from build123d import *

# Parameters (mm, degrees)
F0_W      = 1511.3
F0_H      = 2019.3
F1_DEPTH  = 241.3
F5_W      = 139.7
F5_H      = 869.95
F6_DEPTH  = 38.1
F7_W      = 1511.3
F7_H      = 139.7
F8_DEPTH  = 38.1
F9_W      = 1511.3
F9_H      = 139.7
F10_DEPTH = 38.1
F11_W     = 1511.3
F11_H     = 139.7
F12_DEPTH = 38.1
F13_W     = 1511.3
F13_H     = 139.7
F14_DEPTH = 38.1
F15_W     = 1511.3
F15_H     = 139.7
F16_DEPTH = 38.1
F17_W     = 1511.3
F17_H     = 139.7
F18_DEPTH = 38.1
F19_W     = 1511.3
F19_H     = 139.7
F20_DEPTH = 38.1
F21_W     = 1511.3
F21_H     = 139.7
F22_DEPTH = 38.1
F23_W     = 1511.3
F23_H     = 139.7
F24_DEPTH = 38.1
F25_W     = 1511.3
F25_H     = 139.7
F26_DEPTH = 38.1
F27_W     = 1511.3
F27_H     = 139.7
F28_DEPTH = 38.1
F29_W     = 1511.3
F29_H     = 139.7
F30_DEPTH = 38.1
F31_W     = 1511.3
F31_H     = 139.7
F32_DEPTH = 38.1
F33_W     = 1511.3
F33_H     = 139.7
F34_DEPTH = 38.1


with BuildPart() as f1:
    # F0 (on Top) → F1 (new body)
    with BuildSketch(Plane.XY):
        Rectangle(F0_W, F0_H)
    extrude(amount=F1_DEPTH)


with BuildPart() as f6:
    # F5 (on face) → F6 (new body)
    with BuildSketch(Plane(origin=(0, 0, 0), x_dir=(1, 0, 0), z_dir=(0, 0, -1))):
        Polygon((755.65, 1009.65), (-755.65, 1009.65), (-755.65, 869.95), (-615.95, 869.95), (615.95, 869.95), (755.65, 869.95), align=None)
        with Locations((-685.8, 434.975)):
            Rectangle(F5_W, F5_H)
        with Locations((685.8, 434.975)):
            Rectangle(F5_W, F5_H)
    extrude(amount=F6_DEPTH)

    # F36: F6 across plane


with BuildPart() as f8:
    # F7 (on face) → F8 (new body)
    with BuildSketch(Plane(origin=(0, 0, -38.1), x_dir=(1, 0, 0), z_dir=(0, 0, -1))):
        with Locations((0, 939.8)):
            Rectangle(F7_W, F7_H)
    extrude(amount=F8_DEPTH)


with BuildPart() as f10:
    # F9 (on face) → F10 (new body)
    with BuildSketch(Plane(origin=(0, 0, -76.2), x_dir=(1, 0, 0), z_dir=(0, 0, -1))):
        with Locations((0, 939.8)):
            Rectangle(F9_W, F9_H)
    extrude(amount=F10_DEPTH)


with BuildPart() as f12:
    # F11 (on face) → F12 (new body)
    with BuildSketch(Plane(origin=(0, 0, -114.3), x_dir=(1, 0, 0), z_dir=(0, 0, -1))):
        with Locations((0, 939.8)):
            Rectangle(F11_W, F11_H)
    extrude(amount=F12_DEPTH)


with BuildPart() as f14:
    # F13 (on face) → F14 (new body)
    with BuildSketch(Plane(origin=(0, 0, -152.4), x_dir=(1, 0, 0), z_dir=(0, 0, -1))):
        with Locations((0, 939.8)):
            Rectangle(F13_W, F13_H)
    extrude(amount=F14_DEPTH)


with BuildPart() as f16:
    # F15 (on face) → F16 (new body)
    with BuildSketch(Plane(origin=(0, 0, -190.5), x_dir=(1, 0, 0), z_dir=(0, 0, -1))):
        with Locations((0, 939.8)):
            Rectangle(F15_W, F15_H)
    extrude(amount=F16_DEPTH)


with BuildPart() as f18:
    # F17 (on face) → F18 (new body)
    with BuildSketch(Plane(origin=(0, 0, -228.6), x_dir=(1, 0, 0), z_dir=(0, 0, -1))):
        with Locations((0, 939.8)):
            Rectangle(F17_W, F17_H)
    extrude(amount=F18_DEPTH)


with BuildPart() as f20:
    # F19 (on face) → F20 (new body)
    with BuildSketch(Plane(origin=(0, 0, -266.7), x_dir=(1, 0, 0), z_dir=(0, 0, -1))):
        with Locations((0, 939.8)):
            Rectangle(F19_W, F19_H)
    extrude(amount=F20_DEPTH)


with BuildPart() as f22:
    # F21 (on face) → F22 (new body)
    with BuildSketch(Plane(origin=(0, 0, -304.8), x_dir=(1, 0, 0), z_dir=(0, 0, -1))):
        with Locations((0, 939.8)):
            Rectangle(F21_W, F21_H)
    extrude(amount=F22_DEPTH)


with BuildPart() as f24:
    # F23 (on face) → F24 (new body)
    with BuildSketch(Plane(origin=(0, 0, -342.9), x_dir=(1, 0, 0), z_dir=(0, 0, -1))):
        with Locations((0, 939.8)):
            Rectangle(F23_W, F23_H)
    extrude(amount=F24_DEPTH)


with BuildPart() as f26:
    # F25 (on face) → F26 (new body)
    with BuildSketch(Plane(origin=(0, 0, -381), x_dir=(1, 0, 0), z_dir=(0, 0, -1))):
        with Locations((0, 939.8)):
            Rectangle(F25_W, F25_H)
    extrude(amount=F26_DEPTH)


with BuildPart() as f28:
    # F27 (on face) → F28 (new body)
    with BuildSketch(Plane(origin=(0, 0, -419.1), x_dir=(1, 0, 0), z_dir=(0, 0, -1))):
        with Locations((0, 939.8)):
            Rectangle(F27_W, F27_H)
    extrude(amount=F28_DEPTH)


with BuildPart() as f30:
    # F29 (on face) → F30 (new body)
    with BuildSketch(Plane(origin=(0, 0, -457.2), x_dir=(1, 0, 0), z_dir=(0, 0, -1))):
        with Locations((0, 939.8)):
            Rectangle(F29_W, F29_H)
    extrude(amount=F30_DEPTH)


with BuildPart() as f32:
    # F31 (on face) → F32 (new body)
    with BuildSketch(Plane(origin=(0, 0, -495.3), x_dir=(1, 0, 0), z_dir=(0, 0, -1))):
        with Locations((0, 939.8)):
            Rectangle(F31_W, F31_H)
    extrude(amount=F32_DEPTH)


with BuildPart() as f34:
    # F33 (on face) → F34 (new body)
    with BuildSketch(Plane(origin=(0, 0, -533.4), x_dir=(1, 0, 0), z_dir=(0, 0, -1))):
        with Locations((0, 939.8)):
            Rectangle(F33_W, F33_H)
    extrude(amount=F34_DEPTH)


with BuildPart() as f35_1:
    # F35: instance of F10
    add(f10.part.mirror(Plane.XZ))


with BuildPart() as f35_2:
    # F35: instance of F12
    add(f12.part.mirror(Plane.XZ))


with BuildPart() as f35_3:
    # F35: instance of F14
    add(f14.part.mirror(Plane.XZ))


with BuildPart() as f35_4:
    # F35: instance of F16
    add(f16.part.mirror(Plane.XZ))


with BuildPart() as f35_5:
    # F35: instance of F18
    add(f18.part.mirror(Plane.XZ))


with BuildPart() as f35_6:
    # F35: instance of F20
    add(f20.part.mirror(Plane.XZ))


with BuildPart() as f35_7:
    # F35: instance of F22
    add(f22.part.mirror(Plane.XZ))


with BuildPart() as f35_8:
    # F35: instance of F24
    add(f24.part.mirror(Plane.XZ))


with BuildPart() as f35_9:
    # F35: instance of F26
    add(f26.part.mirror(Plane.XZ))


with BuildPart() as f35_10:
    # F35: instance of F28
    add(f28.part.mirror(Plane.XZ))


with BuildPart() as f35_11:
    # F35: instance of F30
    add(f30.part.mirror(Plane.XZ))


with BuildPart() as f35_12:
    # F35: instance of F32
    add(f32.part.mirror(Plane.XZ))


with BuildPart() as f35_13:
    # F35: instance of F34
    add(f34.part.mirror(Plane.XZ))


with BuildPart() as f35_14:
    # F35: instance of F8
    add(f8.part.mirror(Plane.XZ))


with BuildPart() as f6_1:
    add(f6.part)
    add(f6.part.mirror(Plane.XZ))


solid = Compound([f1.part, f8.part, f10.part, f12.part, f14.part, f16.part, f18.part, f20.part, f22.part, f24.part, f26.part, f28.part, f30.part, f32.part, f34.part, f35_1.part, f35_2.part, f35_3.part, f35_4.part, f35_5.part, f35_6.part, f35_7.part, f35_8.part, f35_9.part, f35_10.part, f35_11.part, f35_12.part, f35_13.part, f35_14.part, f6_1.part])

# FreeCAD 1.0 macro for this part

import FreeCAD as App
import Part
import Sketcher

V = App.Vector
Q = App.Units.Quantity

doc = App.newDocument("Part")
params = doc.addObject("Spreadsheet::Sheet", "Params")
for row, (alias, value) in enumerate([
    ("sketch1_width", "59.5 in"),
    ("sketch1_height", "79.5 in"),
    ("pad1_length", "9.5 in"),
    ("sketch2_width", "59.5 in"),
    ("sketch2_width2", "5.5 in"),
    ("sketch2_height", "39.75 in"),
    ("sketch2_height2", "34.25 in"),
    ("pad2_length", "1.5 in"),
    ("sketch3_width", "59.5 in"),
    ("sketch3_height", "5.5 in"),
    ("pad3_length", "1.5 in"),
    ("sketch4_width", "59.5 in"),
    ("sketch4_height", "5.5 in"),
    ("pad4_length", "1.5 in"),
    ("sketch5_width", "59.5 in"),
    ("sketch5_height", "5.5 in"),
    ("pad5_length", "1.5 in"),
    ("sketch6_width", "59.5 in"),
    ("sketch6_height", "5.5 in"),
    ("pad6_length", "1.5 in"),
    ("sketch7_width", "59.5 in"),
    ("sketch7_height", "5.5 in"),
    ("pad7_length", "1.5 in"),
    ("sketch8_width", "59.5 in"),
    ("sketch8_height", "5.5 in"),
    ("pad8_length", "1.5 in"),
    ("sketch9_width", "59.5 in"),
    ("sketch9_height", "5.5 in"),
    ("pad9_length", "1.5 in"),
    ("sketch10_width", "59.5 in"),
    ("sketch10_height", "5.5 in"),
    ("pad10_length", "1.5 in"),
    ("sketch11_width", "59.5 in"),
    ("sketch11_height", "5.5 in"),
    ("pad11_length", "1.5 in"),
    ("sketch12_width", "59.5 in"),
    ("sketch12_height", "5.5 in"),
    ("pad12_length", "1.5 in"),
    ("sketch13_width", "59.5 in"),
    ("sketch13_height", "5.5 in"),
    ("pad13_length", "1.5 in"),
    ("sketch14_width", "59.5 in"),
    ("sketch14_height", "5.5 in"),
    ("pad14_length", "1.5 in"),
    ("sketch15_width", "59.5 in"),
    ("sketch15_height", "5.5 in"),
    ("pad15_length", "1.5 in"),
    ("sketch16_width", "59.5 in"),
    ("sketch16_height", "5.5 in"),
    ("pad16_length", "1.5 in"),
], start=1):
    params.set(f"A{row}", alias)
    params.set(f"B{row}", "=" + value)
    params.setAlias(f"B{row}", alias)

body = doc.addObject("PartDesign::Body", "Body")

# Sketch on XY plane
sketch1 = doc.addObject("Sketcher::SketchObject", "Sketch")
body.addObject(sketch1)
sketch1.AttachmentSupport = (doc.XY_Plane, [""])
sketch1.MapMode = "FlatFace"
sketch1.addGeometry([
    Part.LineSegment(V(-755.65, 1009.65, 0), V(-755.65, -1009.65, 0)),
    Part.LineSegment(V(-755.65, -1009.65, 0), V(755.65, -1009.65, 0)),
    Part.LineSegment(V(755.65, -1009.65, 0), V(755.65, 1009.65, 0)),
    Part.LineSegment(V(755.65, 1009.65, 0), V(-755.65, 1009.65, 0)),
], False)
sketch1.addConstraint([
    Sketcher.Constraint("Coincident", 0, 2, 1, 1),
    Sketcher.Constraint("Coincident", 1, 2, 2, 1),
    Sketcher.Constraint("Coincident", 2, 2, 3, 1),
    Sketcher.Constraint("Coincident", 3, 2, 0, 1),
    Sketcher.Constraint("Vertical", 0),
    Sketcher.Constraint("Horizontal", 1),
    Sketcher.Constraint("Vertical", 2),
    Sketcher.Constraint("Horizontal", 3),
    Sketcher.Constraint("Symmetric", 0, 2, 2, 2, -1, 1),
    Sketcher.Constraint("DistanceX", 1, 1, 1, 2, Q("59.5 in")),
    Sketcher.Constraint("DistanceY", 0, 2, 0, 1, Q("79.5 in")),
])
sketch1.setExpression("Constraints[9]", "Params.sketch1_width")
sketch1.setExpression("Constraints[10]", "Params.sketch1_height")
pad1 = doc.addObject("PartDesign::Pad", "Pad")
body.addObject(pad1)
pad1.Profile = sketch1
pad1.setExpression("Length", "Params.pad1_length")
body2 = doc.addObject("PartDesign::Body", "Body001")

# Sketch on XY plane
sketch2 = doc.addObject("Sketcher::SketchObject", "Sketch001")
body2.addObject(sketch2)
sketch2.AttachmentSupport = (doc.getObject("XY_Plane001"), [""])
sketch2.MapMode = "FlatFace"
sketch2.addGeometry([
    Part.LineSegment(V(755.65, -1009.65, 0), V(-755.65, -1009.65, 0)),  # 0
    Part.LineSegment(V(-755.65, -1009.65, 0), V(-755.65, 0, 0)),  # 1
    Part.LineSegment(V(-755.65, 0, 0), V(-615.95, 0, 0)),  # 2
    Part.LineSegment(V(-615.95, 0, 0), V(-615.95, -869.95, 0)),  # 3
    Part.LineSegment(V(-615.95, -869.95, 0), V(615.95, -869.95, 0)),  # 4
    Part.LineSegment(V(615.95, -869.95, 0), V(615.95, 0, 0)),  # 5
    Part.LineSegment(V(615.95, 0, 0), V(755.65, 0, 0)),  # 6
    Part.LineSegment(V(755.65, 0, 0), V(755.65, -1009.65, 0)),  # 7
], False)
sketch2.addConstraint([
    Sketcher.Constraint("Coincident", 0, 2, 1, 1),
    Sketcher.Constraint("Coincident", 1, 2, 2, 1),
    Sketcher.Constraint("Coincident", 2, 2, 3, 1),
    Sketcher.Constraint("Coincident", 3, 2, 4, 1),
    Sketcher.Constraint("Coincident", 4, 2, 5, 1),
    Sketcher.Constraint("Coincident", 5, 2, 6, 1),
    Sketcher.Constraint("Coincident", 6, 2, 7, 1),
    Sketcher.Constraint("Coincident", 7, 2, 0, 1),
    Sketcher.Constraint("Horizontal", 0),
    Sketcher.Constraint("Vertical", 1),
    Sketcher.Constraint("Horizontal", 2),
    Sketcher.Constraint("Vertical", 3),
    Sketcher.Constraint("Horizontal", 4),
    Sketcher.Constraint("Vertical", 5),
    Sketcher.Constraint("Horizontal", 6),
    Sketcher.Constraint("Vertical", 7),
    Sketcher.Constraint("Symmetric", 2, 2, 5, 2, -1, 1),
    Sketcher.Constraint("Symmetric", 1, 2, 6, 2, -2),
    Sketcher.Constraint("DistanceX", 0, 2, 0, 1, Q("59.5 in")),
    Sketcher.Constraint("DistanceX", 2, 1, 2, 2, Q("5.5 in")),
    Sketcher.Constraint("DistanceY", 1, 1, 1, 2, Q("39.75 in")),
    Sketcher.Constraint("DistanceY", 3, 2, 3, 1, Q("34.25 in")),
])
sketch2.setExpression("Constraints[18]", "Params.sketch2_width")
sketch2.setExpression("Constraints[19]", "Params.sketch2_width2")
sketch2.setExpression("Constraints[20]", "Params.sketch2_height")
sketch2.setExpression("Constraints[21]", "Params.sketch2_height2")
pad2 = doc.addObject("PartDesign::Pad", "Pad001")
body2.addObject(pad2)
pad2.Profile = sketch2
pad2.setExpression("Length", "Params.pad2_length")
pad2.Reversed = True
body3 = doc.addObject("PartDesign::Body", "Body002")

# Sketch on XY plane
sketch3 = doc.addObject("Sketcher::SketchObject", "Sketch002")
body3.addObject(sketch3)
sketch3.AttachmentSupport = (doc.getObject("XY_Plane002"), [""])
sketch3.MapMode = "FlatFace"
sketch3.AttachmentOffset = App.Placement(V(0, 0, -1.5 * 25.4), App.Rotation())
sketch3.addGeometry([
    Part.LineSegment(V(-755.65, -1009.65, 0), V(-755.65, -869.95, 0)),
    Part.LineSegment(V(-755.65, -869.95, 0), V(755.65, -869.95, 0)),
    Part.LineSegment(V(755.65, -869.95, 0), V(755.65, -1009.65, 0)),
    Part.LineSegment(V(755.65, -1009.65, 0), V(-755.65, -1009.65, 0)),
], False)
sketch3.addConstraint([
    Sketcher.Constraint("Coincident", 0, 2, 1, 1),
    Sketcher.Constraint("Coincident", 1, 2, 2, 1),
    Sketcher.Constraint("Coincident", 2, 2, 3, 1),
    Sketcher.Constraint("Coincident", 3, 2, 0, 1),
    Sketcher.Constraint("Vertical", 0),
    Sketcher.Constraint("Horizontal", 1),
    Sketcher.Constraint("Vertical", 2),
    Sketcher.Constraint("Horizontal", 3),
    Sketcher.Constraint("DistanceX", 1, 1, 1, 2, Q("59.5 in")),
    Sketcher.Constraint("DistanceY", 0, 1, 0, 2, Q("5.5 in")),
    Sketcher.Constraint("DistanceX", 0, 2, -1, 1, Q("29.75 in")),
    Sketcher.Constraint("DistanceY", 0, 2, -1, 1, Q("34.25 in")),
])
sketch3.setExpression("Constraints[8]", "Params.sketch3_width")
sketch3.setExpression("Constraints[9]", "Params.sketch3_height")
pad3 = doc.addObject("PartDesign::Pad", "Pad002")
body3.addObject(pad3)
pad3.Profile = sketch3
pad3.setExpression("Length", "Params.pad3_length")
pad3.Reversed = True
body4 = doc.addObject("PartDesign::Body", "Body003")

# Sketch on XY plane
sketch4 = doc.addObject("Sketcher::SketchObject", "Sketch003")
body4.addObject(sketch4)
sketch4.AttachmentSupport = (doc.getObject("XY_Plane003"), [""])
sketch4.MapMode = "FlatFace"
sketch4.AttachmentOffset = App.Placement(V(0, 0, -3 * 25.4), App.Rotation())
sketch4.addGeometry([
    Part.LineSegment(V(-755.65, -1009.65, 0), V(-755.65, -869.95, 0)),
    Part.LineSegment(V(-755.65, -869.95, 0), V(755.65, -869.95, 0)),
    Part.LineSegment(V(755.65, -869.95, 0), V(755.65, -1009.65, 0)),
    Part.LineSegment(V(755.65, -1009.65, 0), V(-755.65, -1009.65, 0)),
], False)
sketch4.addConstraint([
    Sketcher.Constraint("Coincident", 0, 2, 1, 1),
    Sketcher.Constraint("Coincident", 1, 2, 2, 1),
    Sketcher.Constraint("Coincident", 2, 2, 3, 1),
    Sketcher.Constraint("Coincident", 3, 2, 0, 1),
    Sketcher.Constraint("Vertical", 0),
    Sketcher.Constraint("Horizontal", 1),
    Sketcher.Constraint("Vertical", 2),
    Sketcher.Constraint("Horizontal", 3),
    Sketcher.Constraint("DistanceX", 1, 1, 1, 2, Q("59.5 in")),
    Sketcher.Constraint("DistanceY", 0, 1, 0, 2, Q("5.5 in")),
    Sketcher.Constraint("DistanceX", 0, 2, -1, 1, Q("29.75 in")),
    Sketcher.Constraint("DistanceY", 0, 2, -1, 1, Q("34.25 in")),
])
sketch4.setExpression("Constraints[8]", "Params.sketch4_width")
sketch4.setExpression("Constraints[9]", "Params.sketch4_height")
pad4 = doc.addObject("PartDesign::Pad", "Pad003")
body4.addObject(pad4)
pad4.Profile = sketch4
pad4.setExpression("Length", "Params.pad4_length")
pad4.Reversed = True
body5 = doc.addObject("PartDesign::Body", "Body004")

# Sketch on XY plane
sketch5 = doc.addObject("Sketcher::SketchObject", "Sketch004")
body5.addObject(sketch5)
sketch5.AttachmentSupport = (doc.getObject("XY_Plane004"), [""])
sketch5.MapMode = "FlatFace"
sketch5.AttachmentOffset = App.Placement(V(0, 0, -4.5 * 25.4), App.Rotation())
sketch5.addGeometry([
    Part.LineSegment(V(-755.65, -1009.65, 0), V(-755.65, -869.95, 0)),
    Part.LineSegment(V(-755.65, -869.95, 0), V(755.65, -869.95, 0)),
    Part.LineSegment(V(755.65, -869.95, 0), V(755.65, -1009.65, 0)),
    Part.LineSegment(V(755.65, -1009.65, 0), V(-755.65, -1009.65, 0)),
], False)
sketch5.addConstraint([
    Sketcher.Constraint("Coincident", 0, 2, 1, 1),
    Sketcher.Constraint("Coincident", 1, 2, 2, 1),
    Sketcher.Constraint("Coincident", 2, 2, 3, 1),
    Sketcher.Constraint("Coincident", 3, 2, 0, 1),
    Sketcher.Constraint("Vertical", 0),
    Sketcher.Constraint("Horizontal", 1),
    Sketcher.Constraint("Vertical", 2),
    Sketcher.Constraint("Horizontal", 3),
    Sketcher.Constraint("DistanceX", 1, 1, 1, 2, Q("59.5 in")),
    Sketcher.Constraint("DistanceY", 0, 1, 0, 2, Q("5.5 in")),
    Sketcher.Constraint("DistanceX", 0, 2, -1, 1, Q("29.75 in")),
    Sketcher.Constraint("DistanceY", 0, 2, -1, 1, Q("34.25 in")),
])
sketch5.setExpression("Constraints[8]", "Params.sketch5_width")
sketch5.setExpression("Constraints[9]", "Params.sketch5_height")
pad5 = doc.addObject("PartDesign::Pad", "Pad004")
body5.addObject(pad5)
pad5.Profile = sketch5
pad5.setExpression("Length", "Params.pad5_length")
pad5.Reversed = True
body6 = doc.addObject("PartDesign::Body", "Body005")

# Sketch on XY plane
sketch6 = doc.addObject("Sketcher::SketchObject", "Sketch005")
body6.addObject(sketch6)
sketch6.AttachmentSupport = (doc.getObject("XY_Plane005"), [""])
sketch6.MapMode = "FlatFace"
sketch6.AttachmentOffset = App.Placement(V(0, 0, -6 * 25.4), App.Rotation())
sketch6.addGeometry([
    Part.LineSegment(V(-755.65, -1009.65, 0), V(-755.65, -869.95, 0)),
    Part.LineSegment(V(-755.65, -869.95, 0), V(755.65, -869.95, 0)),
    Part.LineSegment(V(755.65, -869.95, 0), V(755.65, -1009.65, 0)),
    Part.LineSegment(V(755.65, -1009.65, 0), V(-755.65, -1009.65, 0)),
], False)
sketch6.addConstraint([
    Sketcher.Constraint("Coincident", 0, 2, 1, 1),
    Sketcher.Constraint("Coincident", 1, 2, 2, 1),
    Sketcher.Constraint("Coincident", 2, 2, 3, 1),
    Sketcher.Constraint("Coincident", 3, 2, 0, 1),
    Sketcher.Constraint("Vertical", 0),
    Sketcher.Constraint("Horizontal", 1),
    Sketcher.Constraint("Vertical", 2),
    Sketcher.Constraint("Horizontal", 3),
    Sketcher.Constraint("DistanceX", 1, 1, 1, 2, Q("59.5 in")),
    Sketcher.Constraint("DistanceY", 0, 1, 0, 2, Q("5.5 in")),
    Sketcher.Constraint("DistanceX", 0, 2, -1, 1, Q("29.75 in")),
    Sketcher.Constraint("DistanceY", 0, 2, -1, 1, Q("34.25 in")),
])
sketch6.setExpression("Constraints[8]", "Params.sketch6_width")
sketch6.setExpression("Constraints[9]", "Params.sketch6_height")
pad6 = doc.addObject("PartDesign::Pad", "Pad005")
body6.addObject(pad6)
pad6.Profile = sketch6
pad6.setExpression("Length", "Params.pad6_length")
pad6.Reversed = True
body7 = doc.addObject("PartDesign::Body", "Body006")

# Sketch on XY plane
sketch7 = doc.addObject("Sketcher::SketchObject", "Sketch006")
body7.addObject(sketch7)
sketch7.AttachmentSupport = (doc.getObject("XY_Plane006"), [""])
sketch7.MapMode = "FlatFace"
sketch7.AttachmentOffset = App.Placement(V(0, 0, -7.5 * 25.4), App.Rotation())
sketch7.addGeometry([
    Part.LineSegment(V(-755.65, -1009.65, 0), V(-755.65, -869.95, 0)),
    Part.LineSegment(V(-755.65, -869.95, 0), V(755.65, -869.95, 0)),
    Part.LineSegment(V(755.65, -869.95, 0), V(755.65, -1009.65, 0)),
    Part.LineSegment(V(755.65, -1009.65, 0), V(-755.65, -1009.65, 0)),
], False)
sketch7.addConstraint([
    Sketcher.Constraint("Coincident", 0, 2, 1, 1),
    Sketcher.Constraint("Coincident", 1, 2, 2, 1),
    Sketcher.Constraint("Coincident", 2, 2, 3, 1),
    Sketcher.Constraint("Coincident", 3, 2, 0, 1),
    Sketcher.Constraint("Vertical", 0),
    Sketcher.Constraint("Horizontal", 1),
    Sketcher.Constraint("Vertical", 2),
    Sketcher.Constraint("Horizontal", 3),
    Sketcher.Constraint("DistanceX", 1, 1, 1, 2, Q("59.5 in")),
    Sketcher.Constraint("DistanceY", 0, 1, 0, 2, Q("5.5 in")),
    Sketcher.Constraint("DistanceX", 0, 2, -1, 1, Q("29.75 in")),
    Sketcher.Constraint("DistanceY", 0, 2, -1, 1, Q("34.25 in")),
])
sketch7.setExpression("Constraints[8]", "Params.sketch7_width")
sketch7.setExpression("Constraints[9]", "Params.sketch7_height")
pad7 = doc.addObject("PartDesign::Pad", "Pad006")
body7.addObject(pad7)
pad7.Profile = sketch7
pad7.setExpression("Length", "Params.pad7_length")
pad7.Reversed = True
body8 = doc.addObject("PartDesign::Body", "Body007")

# Sketch on XY plane
sketch8 = doc.addObject("Sketcher::SketchObject", "Sketch007")
body8.addObject(sketch8)
sketch8.AttachmentSupport = (doc.getObject("XY_Plane007"), [""])
sketch8.MapMode = "FlatFace"
sketch8.AttachmentOffset = App.Placement(V(0, 0, -9 * 25.4), App.Rotation())
sketch8.addGeometry([
    Part.LineSegment(V(-755.65, -1009.65, 0), V(-755.65, -869.95, 0)),
    Part.LineSegment(V(-755.65, -869.95, 0), V(755.65, -869.95, 0)),
    Part.LineSegment(V(755.65, -869.95, 0), V(755.65, -1009.65, 0)),
    Part.LineSegment(V(755.65, -1009.65, 0), V(-755.65, -1009.65, 0)),
], False)
sketch8.addConstraint([
    Sketcher.Constraint("Coincident", 0, 2, 1, 1),
    Sketcher.Constraint("Coincident", 1, 2, 2, 1),
    Sketcher.Constraint("Coincident", 2, 2, 3, 1),
    Sketcher.Constraint("Coincident", 3, 2, 0, 1),
    Sketcher.Constraint("Vertical", 0),
    Sketcher.Constraint("Horizontal", 1),
    Sketcher.Constraint("Vertical", 2),
    Sketcher.Constraint("Horizontal", 3),
    Sketcher.Constraint("DistanceX", 1, 1, 1, 2, Q("59.5 in")),
    Sketcher.Constraint("DistanceY", 0, 1, 0, 2, Q("5.5 in")),
    Sketcher.Constraint("DistanceX", 0, 2, -1, 1, Q("29.75 in")),
    Sketcher.Constraint("DistanceY", 0, 2, -1, 1, Q("34.25 in")),
])
sketch8.setExpression("Constraints[8]", "Params.sketch8_width")
sketch8.setExpression("Constraints[9]", "Params.sketch8_height")
pad8 = doc.addObject("PartDesign::Pad", "Pad007")
body8.addObject(pad8)
pad8.Profile = sketch8
pad8.setExpression("Length", "Params.pad8_length")
pad8.Reversed = True
body9 = doc.addObject("PartDesign::Body", "Body008")

# Sketch on XY plane
sketch9 = doc.addObject("Sketcher::SketchObject", "Sketch008")
body9.addObject(sketch9)
sketch9.AttachmentSupport = (doc.getObject("XY_Plane008"), [""])
sketch9.MapMode = "FlatFace"
sketch9.AttachmentOffset = App.Placement(V(0, 0, -10.5 * 25.4), App.Rotation())
sketch9.addGeometry([
    Part.LineSegment(V(-755.65, -1009.65, 0), V(-755.65, -869.95, 0)),
    Part.LineSegment(V(-755.65, -869.95, 0), V(755.65, -869.95, 0)),
    Part.LineSegment(V(755.65, -869.95, 0), V(755.65, -1009.65, 0)),
    Part.LineSegment(V(755.65, -1009.65, 0), V(-755.65, -1009.65, 0)),
], False)
sketch9.addConstraint([
    Sketcher.Constraint("Coincident", 0, 2, 1, 1),
    Sketcher.Constraint("Coincident", 1, 2, 2, 1),
    Sketcher.Constraint("Coincident", 2, 2, 3, 1),
    Sketcher.Constraint("Coincident", 3, 2, 0, 1),
    Sketcher.Constraint("Vertical", 0),
    Sketcher.Constraint("Horizontal", 1),
    Sketcher.Constraint("Vertical", 2),
    Sketcher.Constraint("Horizontal", 3),
    Sketcher.Constraint("DistanceX", 1, 1, 1, 2, Q("59.5 in")),
    Sketcher.Constraint("DistanceY", 0, 1, 0, 2, Q("5.5 in")),
    Sketcher.Constraint("DistanceX", 0, 2, -1, 1, Q("29.75 in")),
    Sketcher.Constraint("DistanceY", 0, 2, -1, 1, Q("34.25 in")),
])
sketch9.setExpression("Constraints[8]", "Params.sketch9_width")
sketch9.setExpression("Constraints[9]", "Params.sketch9_height")
pad9 = doc.addObject("PartDesign::Pad", "Pad008")
body9.addObject(pad9)
pad9.Profile = sketch9
pad9.setExpression("Length", "Params.pad9_length")
pad9.Reversed = True
body10 = doc.addObject("PartDesign::Body", "Body009")

# Sketch on XY plane
sketch10 = doc.addObject("Sketcher::SketchObject", "Sketch009")
body10.addObject(sketch10)
sketch10.AttachmentSupport = (doc.getObject("XY_Plane009"), [""])
sketch10.MapMode = "FlatFace"
sketch10.AttachmentOffset = App.Placement(V(0, 0, -12 * 25.4), App.Rotation())
sketch10.addGeometry([
    Part.LineSegment(V(-755.65, -1009.65, 0), V(-755.65, -869.95, 0)),
    Part.LineSegment(V(-755.65, -869.95, 0), V(755.65, -869.95, 0)),
    Part.LineSegment(V(755.65, -869.95, 0), V(755.65, -1009.65, 0)),
    Part.LineSegment(V(755.65, -1009.65, 0), V(-755.65, -1009.65, 0)),
], False)
sketch10.addConstraint([
    Sketcher.Constraint("Coincident", 0, 2, 1, 1),
    Sketcher.Constraint("Coincident", 1, 2, 2, 1),
    Sketcher.Constraint("Coincident", 2, 2, 3, 1),
    Sketcher.Constraint("Coincident", 3, 2, 0, 1),
    Sketcher.Constraint("Vertical", 0),
    Sketcher.Constraint("Horizontal", 1),
    Sketcher.Constraint("Vertical", 2),
    Sketcher.Constraint("Horizontal", 3),
    Sketcher.Constraint("DistanceX", 1, 1, 1, 2, Q("59.5 in")),
    Sketcher.Constraint("DistanceY", 0, 1, 0, 2, Q("5.5 in")),
    Sketcher.Constraint("DistanceX", 0, 2, -1, 1, Q("29.75 in")),
    Sketcher.Constraint("DistanceY", 0, 2, -1, 1, Q("34.25 in")),
])
sketch10.setExpression("Constraints[8]", "Params.sketch10_width")
sketch10.setExpression("Constraints[9]", "Params.sketch10_height")
pad10 = doc.addObject("PartDesign::Pad", "Pad009")
body10.addObject(pad10)
pad10.Profile = sketch10
pad10.setExpression("Length", "Params.pad10_length")
pad10.Reversed = True
body11 = doc.addObject("PartDesign::Body", "Body010")

# Sketch on XY plane
sketch11 = doc.addObject("Sketcher::SketchObject", "Sketch010")
body11.addObject(sketch11)
sketch11.AttachmentSupport = (doc.getObject("XY_Plane010"), [""])
sketch11.MapMode = "FlatFace"
sketch11.AttachmentOffset = App.Placement(V(0, 0, -13.5 * 25.4), App.Rotation())
sketch11.addGeometry([
    Part.LineSegment(V(-755.65, -1009.65, 0), V(-755.65, -869.95, 0)),
    Part.LineSegment(V(-755.65, -869.95, 0), V(755.65, -869.95, 0)),
    Part.LineSegment(V(755.65, -869.95, 0), V(755.65, -1009.65, 0)),
    Part.LineSegment(V(755.65, -1009.65, 0), V(-755.65, -1009.65, 0)),
], False)
sketch11.addConstraint([
    Sketcher.Constraint("Coincident", 0, 2, 1, 1),
    Sketcher.Constraint("Coincident", 1, 2, 2, 1),
    Sketcher.Constraint("Coincident", 2, 2, 3, 1),
    Sketcher.Constraint("Coincident", 3, 2, 0, 1),
    Sketcher.Constraint("Vertical", 0),
    Sketcher.Constraint("Horizontal", 1),
    Sketcher.Constraint("Vertical", 2),
    Sketcher.Constraint("Horizontal", 3),
    Sketcher.Constraint("DistanceX", 1, 1, 1, 2, Q("59.5 in")),
    Sketcher.Constraint("DistanceY", 0, 1, 0, 2, Q("5.5 in")),
    Sketcher.Constraint("DistanceX", 0, 2, -1, 1, Q("29.75 in")),
    Sketcher.Constraint("DistanceY", 0, 2, -1, 1, Q("34.25 in")),
])
sketch11.setExpression("Constraints[8]", "Params.sketch11_width")
sketch11.setExpression("Constraints[9]", "Params.sketch11_height")
pad11 = doc.addObject("PartDesign::Pad", "Pad010")
body11.addObject(pad11)
pad11.Profile = sketch11
pad11.setExpression("Length", "Params.pad11_length")
pad11.Reversed = True
body12 = doc.addObject("PartDesign::Body", "Body011")

# Sketch on XY plane
sketch12 = doc.addObject("Sketcher::SketchObject", "Sketch011")
body12.addObject(sketch12)
sketch12.AttachmentSupport = (doc.getObject("XY_Plane011"), [""])
sketch12.MapMode = "FlatFace"
sketch12.AttachmentOffset = App.Placement(V(0, 0, -15 * 25.4), App.Rotation())
sketch12.addGeometry([
    Part.LineSegment(V(-755.65, -1009.65, 0), V(-755.65, -869.95, 0)),
    Part.LineSegment(V(-755.65, -869.95, 0), V(755.65, -869.95, 0)),
    Part.LineSegment(V(755.65, -869.95, 0), V(755.65, -1009.65, 0)),
    Part.LineSegment(V(755.65, -1009.65, 0), V(-755.65, -1009.65, 0)),
], False)
sketch12.addConstraint([
    Sketcher.Constraint("Coincident", 0, 2, 1, 1),
    Sketcher.Constraint("Coincident", 1, 2, 2, 1),
    Sketcher.Constraint("Coincident", 2, 2, 3, 1),
    Sketcher.Constraint("Coincident", 3, 2, 0, 1),
    Sketcher.Constraint("Vertical", 0),
    Sketcher.Constraint("Horizontal", 1),
    Sketcher.Constraint("Vertical", 2),
    Sketcher.Constraint("Horizontal", 3),
    Sketcher.Constraint("DistanceX", 1, 1, 1, 2, Q("59.5 in")),
    Sketcher.Constraint("DistanceY", 0, 1, 0, 2, Q("5.5 in")),
    Sketcher.Constraint("DistanceX", 0, 2, -1, 1, Q("29.75 in")),
    Sketcher.Constraint("DistanceY", 0, 2, -1, 1, Q("34.25 in")),
])
sketch12.setExpression("Constraints[8]", "Params.sketch12_width")
sketch12.setExpression("Constraints[9]", "Params.sketch12_height")
pad12 = doc.addObject("PartDesign::Pad", "Pad011")
body12.addObject(pad12)
pad12.Profile = sketch12
pad12.setExpression("Length", "Params.pad12_length")
pad12.Reversed = True
body13 = doc.addObject("PartDesign::Body", "Body012")

# Sketch on XY plane
sketch13 = doc.addObject("Sketcher::SketchObject", "Sketch012")
body13.addObject(sketch13)
sketch13.AttachmentSupport = (doc.getObject("XY_Plane012"), [""])
sketch13.MapMode = "FlatFace"
sketch13.AttachmentOffset = App.Placement(V(0, 0, -16.5 * 25.4), App.Rotation())
sketch13.addGeometry([
    Part.LineSegment(V(-755.65, -1009.65, 0), V(-755.65, -869.95, 0)),
    Part.LineSegment(V(-755.65, -869.95, 0), V(755.65, -869.95, 0)),
    Part.LineSegment(V(755.65, -869.95, 0), V(755.65, -1009.65, 0)),
    Part.LineSegment(V(755.65, -1009.65, 0), V(-755.65, -1009.65, 0)),
], False)
sketch13.addConstraint([
    Sketcher.Constraint("Coincident", 0, 2, 1, 1),
    Sketcher.Constraint("Coincident", 1, 2, 2, 1),
    Sketcher.Constraint("Coincident", 2, 2, 3, 1),
    Sketcher.Constraint("Coincident", 3, 2, 0, 1),
    Sketcher.Constraint("Vertical", 0),
    Sketcher.Constraint("Horizontal", 1),
    Sketcher.Constraint("Vertical", 2),
    Sketcher.Constraint("Horizontal", 3),
    Sketcher.Constraint("DistanceX", 1, 1, 1, 2, Q("59.5 in")),
    Sketcher.Constraint("DistanceY", 0, 1, 0, 2, Q("5.5 in")),
    Sketcher.Constraint("DistanceX", 0, 2, -1, 1, Q("29.75 in")),
    Sketcher.Constraint("DistanceY", 0, 2, -1, 1, Q("34.25 in")),
])
sketch13.setExpression("Constraints[8]", "Params.sketch13_width")
sketch13.setExpression("Constraints[9]", "Params.sketch13_height")
pad13 = doc.addObject("PartDesign::Pad", "Pad012")
body13.addObject(pad13)
pad13.Profile = sketch13
pad13.setExpression("Length", "Params.pad13_length")
pad13.Reversed = True
body14 = doc.addObject("PartDesign::Body", "Body013")

# Sketch on XY plane
sketch14 = doc.addObject("Sketcher::SketchObject", "Sketch013")
body14.addObject(sketch14)
sketch14.AttachmentSupport = (doc.getObject("XY_Plane013"), [""])
sketch14.MapMode = "FlatFace"
sketch14.AttachmentOffset = App.Placement(V(0, 0, -18 * 25.4), App.Rotation())
sketch14.addGeometry([
    Part.LineSegment(V(-755.65, -1009.65, 0), V(-755.65, -869.95, 0)),
    Part.LineSegment(V(-755.65, -869.95, 0), V(755.65, -869.95, 0)),
    Part.LineSegment(V(755.65, -869.95, 0), V(755.65, -1009.65, 0)),
    Part.LineSegment(V(755.65, -1009.65, 0), V(-755.65, -1009.65, 0)),
], False)
sketch14.addConstraint([
    Sketcher.Constraint("Coincident", 0, 2, 1, 1),
    Sketcher.Constraint("Coincident", 1, 2, 2, 1),
    Sketcher.Constraint("Coincident", 2, 2, 3, 1),
    Sketcher.Constraint("Coincident", 3, 2, 0, 1),
    Sketcher.Constraint("Vertical", 0),
    Sketcher.Constraint("Horizontal", 1),
    Sketcher.Constraint("Vertical", 2),
    Sketcher.Constraint("Horizontal", 3),
    Sketcher.Constraint("DistanceX", 1, 1, 1, 2, Q("59.5 in")),
    Sketcher.Constraint("DistanceY", 0, 1, 0, 2, Q("5.5 in")),
    Sketcher.Constraint("DistanceX", 0, 2, -1, 1, Q("29.75 in")),
    Sketcher.Constraint("DistanceY", 0, 2, -1, 1, Q("34.25 in")),
])
sketch14.setExpression("Constraints[8]", "Params.sketch14_width")
sketch14.setExpression("Constraints[9]", "Params.sketch14_height")
pad14 = doc.addObject("PartDesign::Pad", "Pad013")
body14.addObject(pad14)
pad14.Profile = sketch14
pad14.setExpression("Length", "Params.pad14_length")
pad14.Reversed = True
body15 = doc.addObject("PartDesign::Body", "Body014")

# Sketch on XY plane
sketch15 = doc.addObject("Sketcher::SketchObject", "Sketch014")
body15.addObject(sketch15)
sketch15.AttachmentSupport = (doc.getObject("XY_Plane014"), [""])
sketch15.MapMode = "FlatFace"
sketch15.AttachmentOffset = App.Placement(V(0, 0, -19.5 * 25.4), App.Rotation())
sketch15.addGeometry([
    Part.LineSegment(V(-755.65, -1009.65, 0), V(-755.65, -869.95, 0)),
    Part.LineSegment(V(-755.65, -869.95, 0), V(755.65, -869.95, 0)),
    Part.LineSegment(V(755.65, -869.95, 0), V(755.65, -1009.65, 0)),
    Part.LineSegment(V(755.65, -1009.65, 0), V(-755.65, -1009.65, 0)),
], False)
sketch15.addConstraint([
    Sketcher.Constraint("Coincident", 0, 2, 1, 1),
    Sketcher.Constraint("Coincident", 1, 2, 2, 1),
    Sketcher.Constraint("Coincident", 2, 2, 3, 1),
    Sketcher.Constraint("Coincident", 3, 2, 0, 1),
    Sketcher.Constraint("Vertical", 0),
    Sketcher.Constraint("Horizontal", 1),
    Sketcher.Constraint("Vertical", 2),
    Sketcher.Constraint("Horizontal", 3),
    Sketcher.Constraint("DistanceX", 1, 1, 1, 2, Q("59.5 in")),
    Sketcher.Constraint("DistanceY", 0, 1, 0, 2, Q("5.5 in")),
    Sketcher.Constraint("DistanceX", 0, 2, -1, 1, Q("29.75 in")),
    Sketcher.Constraint("DistanceY", 0, 2, -1, 1, Q("34.25 in")),
])
sketch15.setExpression("Constraints[8]", "Params.sketch15_width")
sketch15.setExpression("Constraints[9]", "Params.sketch15_height")
pad15 = doc.addObject("PartDesign::Pad", "Pad014")
body15.addObject(pad15)
pad15.Profile = sketch15
pad15.setExpression("Length", "Params.pad15_length")
pad15.Reversed = True
body16 = doc.addObject("PartDesign::Body", "Body015")

# Sketch on XY plane
sketch16 = doc.addObject("Sketcher::SketchObject", "Sketch015")
body16.addObject(sketch16)
sketch16.AttachmentSupport = (doc.getObject("XY_Plane015"), [""])
sketch16.MapMode = "FlatFace"
sketch16.AttachmentOffset = App.Placement(V(0, 0, -21 * 25.4), App.Rotation())
sketch16.addGeometry([
    Part.LineSegment(V(-755.65, -1009.65, 0), V(-755.65, -869.95, 0)),
    Part.LineSegment(V(-755.65, -869.95, 0), V(755.65, -869.95, 0)),
    Part.LineSegment(V(755.65, -869.95, 0), V(755.65, -1009.65, 0)),
    Part.LineSegment(V(755.65, -1009.65, 0), V(-755.65, -1009.65, 0)),
], False)
sketch16.addConstraint([
    Sketcher.Constraint("Coincident", 0, 2, 1, 1),
    Sketcher.Constraint("Coincident", 1, 2, 2, 1),
    Sketcher.Constraint("Coincident", 2, 2, 3, 1),
    Sketcher.Constraint("Coincident", 3, 2, 0, 1),
    Sketcher.Constraint("Vertical", 0),
    Sketcher.Constraint("Horizontal", 1),
    Sketcher.Constraint("Vertical", 2),
    Sketcher.Constraint("Horizontal", 3),
    Sketcher.Constraint("DistanceX", 1, 1, 1, 2, Q("59.5 in")),
    Sketcher.Constraint("DistanceY", 0, 1, 0, 2, Q("5.5 in")),
    Sketcher.Constraint("DistanceX", 0, 2, -1, 1, Q("29.75 in")),
    Sketcher.Constraint("DistanceY", 0, 2, -1, 1, Q("34.25 in")),
])
sketch16.setExpression("Constraints[8]", "Params.sketch16_width")
sketch16.setExpression("Constraints[9]", "Params.sketch16_height")
pad16 = doc.addObject("PartDesign::Pad", "Pad015")
body16.addObject(pad16)
pad16.Profile = sketch16
pad16.setExpression("Length", "Params.pad16_length")
pad16.Reversed = True
body17 = doc.addObject("PartDesign::Body", "Body016")
doc.recompute()

mirroring = doc.addObject("Part::Mirroring", "Mirroring")
mirroring.Source = body4
mirroring.Base = V(0, 0, 0)
mirroring.Normal = V(0, -1, 0)
body17.BaseFeature = mirroring
doc.recompute()
body18 = doc.addObject("PartDesign::Body", "Body017")
doc.recompute()

mirroring2 = doc.addObject("Part::Mirroring", "Mirroring001")
mirroring2.Source = body5
mirroring2.Base = V(0, 0, 0)
mirroring2.Normal = V(0, -1, 0)
body18.BaseFeature = mirroring2
doc.recompute()
body19 = doc.addObject("PartDesign::Body", "Body018")
doc.recompute()

mirroring3 = doc.addObject("Part::Mirroring", "Mirroring002")
mirroring3.Source = body6
mirroring3.Base = V(0, 0, 0)
mirroring3.Normal = V(0, -1, 0)
body19.BaseFeature = mirroring3
doc.recompute()
body20 = doc.addObject("PartDesign::Body", "Body019")
doc.recompute()

mirroring4 = doc.addObject("Part::Mirroring", "Mirroring003")
mirroring4.Source = body7
mirroring4.Base = V(0, 0, 0)
mirroring4.Normal = V(0, -1, 0)
body20.BaseFeature = mirroring4
doc.recompute()
body21 = doc.addObject("PartDesign::Body", "Body020")
doc.recompute()

mirroring5 = doc.addObject("Part::Mirroring", "Mirroring004")
mirroring5.Source = body8
mirroring5.Base = V(0, 0, 0)
mirroring5.Normal = V(0, -1, 0)
body21.BaseFeature = mirroring5
doc.recompute()
body22 = doc.addObject("PartDesign::Body", "Body021")
doc.recompute()

mirroring6 = doc.addObject("Part::Mirroring", "Mirroring005")
mirroring6.Source = body9
mirroring6.Base = V(0, 0, 0)
mirroring6.Normal = V(0, -1, 0)
body22.BaseFeature = mirroring6
doc.recompute()
body23 = doc.addObject("PartDesign::Body", "Body022")
doc.recompute()

mirroring7 = doc.addObject("Part::Mirroring", "Mirroring006")
mirroring7.Source = body10
mirroring7.Base = V(0, 0, 0)
mirroring7.Normal = V(0, -1, 0)
body23.BaseFeature = mirroring7
doc.recompute()
body24 = doc.addObject("PartDesign::Body", "Body023")
doc.recompute()

mirroring8 = doc.addObject("Part::Mirroring", "Mirroring007")
mirroring8.Source = body11
mirroring8.Base = V(0, 0, 0)
mirroring8.Normal = V(0, -1, 0)
body24.BaseFeature = mirroring8
doc.recompute()
body25 = doc.addObject("PartDesign::Body", "Body024")
doc.recompute()

mirroring9 = doc.addObject("Part::Mirroring", "Mirroring008")
mirroring9.Source = body12
mirroring9.Base = V(0, 0, 0)
mirroring9.Normal = V(0, -1, 0)
body25.BaseFeature = mirroring9
doc.recompute()
body26 = doc.addObject("PartDesign::Body", "Body025")
doc.recompute()

mirroring10 = doc.addObject("Part::Mirroring", "Mirroring009")
mirroring10.Source = body13
mirroring10.Base = V(0, 0, 0)
mirroring10.Normal = V(0, -1, 0)
body26.BaseFeature = mirroring10
doc.recompute()
body27 = doc.addObject("PartDesign::Body", "Body026")
doc.recompute()

mirroring11 = doc.addObject("Part::Mirroring", "Mirroring010")
mirroring11.Source = body14
mirroring11.Base = V(0, 0, 0)
mirroring11.Normal = V(0, -1, 0)
body27.BaseFeature = mirroring11
doc.recompute()
body28 = doc.addObject("PartDesign::Body", "Body027")
doc.recompute()

mirroring12 = doc.addObject("Part::Mirroring", "Mirroring011")
mirroring12.Source = body15
mirroring12.Base = V(0, 0, 0)
mirroring12.Normal = V(0, -1, 0)
body28.BaseFeature = mirroring12
doc.recompute()
body29 = doc.addObject("PartDesign::Body", "Body028")
doc.recompute()

mirroring13 = doc.addObject("Part::Mirroring", "Mirroring012")
mirroring13.Source = body16
mirroring13.Base = V(0, 0, 0)
mirroring13.Normal = V(0, -1, 0)
body29.BaseFeature = mirroring13
doc.recompute()
body30 = doc.addObject("PartDesign::Body", "Body029")
doc.recompute()

mirroring14 = doc.addObject("Part::Mirroring", "Mirroring013")
mirroring14.Source = body3
mirroring14.Base = V(0, 0, 0)
mirroring14.Normal = V(0, -1, 0)
body30.BaseFeature = mirroring14
doc.recompute()
body31 = doc.addObject("PartDesign::Body", "Body030")
doc.recompute()

body31.BaseFeature = body2
doc.recompute()

mirroring15 = doc.addObject("Part::Mirroring", "Mirroring014")
mirroring15.Source = body2
mirroring15.Base = V(0, 0, 0)
mirroring15.Normal = V(0, -1, 0)
body32 = doc.addObject("PartDesign::Body", "Body031")
body32.BaseFeature = mirroring15
boolean = doc.addObject("PartDesign::Boolean", "Boolean")
body31.addObject(boolean)
boolean.Type = "Fuse"
boolean.addObjects([body32])
doc.recompute()

doc.recompute()
